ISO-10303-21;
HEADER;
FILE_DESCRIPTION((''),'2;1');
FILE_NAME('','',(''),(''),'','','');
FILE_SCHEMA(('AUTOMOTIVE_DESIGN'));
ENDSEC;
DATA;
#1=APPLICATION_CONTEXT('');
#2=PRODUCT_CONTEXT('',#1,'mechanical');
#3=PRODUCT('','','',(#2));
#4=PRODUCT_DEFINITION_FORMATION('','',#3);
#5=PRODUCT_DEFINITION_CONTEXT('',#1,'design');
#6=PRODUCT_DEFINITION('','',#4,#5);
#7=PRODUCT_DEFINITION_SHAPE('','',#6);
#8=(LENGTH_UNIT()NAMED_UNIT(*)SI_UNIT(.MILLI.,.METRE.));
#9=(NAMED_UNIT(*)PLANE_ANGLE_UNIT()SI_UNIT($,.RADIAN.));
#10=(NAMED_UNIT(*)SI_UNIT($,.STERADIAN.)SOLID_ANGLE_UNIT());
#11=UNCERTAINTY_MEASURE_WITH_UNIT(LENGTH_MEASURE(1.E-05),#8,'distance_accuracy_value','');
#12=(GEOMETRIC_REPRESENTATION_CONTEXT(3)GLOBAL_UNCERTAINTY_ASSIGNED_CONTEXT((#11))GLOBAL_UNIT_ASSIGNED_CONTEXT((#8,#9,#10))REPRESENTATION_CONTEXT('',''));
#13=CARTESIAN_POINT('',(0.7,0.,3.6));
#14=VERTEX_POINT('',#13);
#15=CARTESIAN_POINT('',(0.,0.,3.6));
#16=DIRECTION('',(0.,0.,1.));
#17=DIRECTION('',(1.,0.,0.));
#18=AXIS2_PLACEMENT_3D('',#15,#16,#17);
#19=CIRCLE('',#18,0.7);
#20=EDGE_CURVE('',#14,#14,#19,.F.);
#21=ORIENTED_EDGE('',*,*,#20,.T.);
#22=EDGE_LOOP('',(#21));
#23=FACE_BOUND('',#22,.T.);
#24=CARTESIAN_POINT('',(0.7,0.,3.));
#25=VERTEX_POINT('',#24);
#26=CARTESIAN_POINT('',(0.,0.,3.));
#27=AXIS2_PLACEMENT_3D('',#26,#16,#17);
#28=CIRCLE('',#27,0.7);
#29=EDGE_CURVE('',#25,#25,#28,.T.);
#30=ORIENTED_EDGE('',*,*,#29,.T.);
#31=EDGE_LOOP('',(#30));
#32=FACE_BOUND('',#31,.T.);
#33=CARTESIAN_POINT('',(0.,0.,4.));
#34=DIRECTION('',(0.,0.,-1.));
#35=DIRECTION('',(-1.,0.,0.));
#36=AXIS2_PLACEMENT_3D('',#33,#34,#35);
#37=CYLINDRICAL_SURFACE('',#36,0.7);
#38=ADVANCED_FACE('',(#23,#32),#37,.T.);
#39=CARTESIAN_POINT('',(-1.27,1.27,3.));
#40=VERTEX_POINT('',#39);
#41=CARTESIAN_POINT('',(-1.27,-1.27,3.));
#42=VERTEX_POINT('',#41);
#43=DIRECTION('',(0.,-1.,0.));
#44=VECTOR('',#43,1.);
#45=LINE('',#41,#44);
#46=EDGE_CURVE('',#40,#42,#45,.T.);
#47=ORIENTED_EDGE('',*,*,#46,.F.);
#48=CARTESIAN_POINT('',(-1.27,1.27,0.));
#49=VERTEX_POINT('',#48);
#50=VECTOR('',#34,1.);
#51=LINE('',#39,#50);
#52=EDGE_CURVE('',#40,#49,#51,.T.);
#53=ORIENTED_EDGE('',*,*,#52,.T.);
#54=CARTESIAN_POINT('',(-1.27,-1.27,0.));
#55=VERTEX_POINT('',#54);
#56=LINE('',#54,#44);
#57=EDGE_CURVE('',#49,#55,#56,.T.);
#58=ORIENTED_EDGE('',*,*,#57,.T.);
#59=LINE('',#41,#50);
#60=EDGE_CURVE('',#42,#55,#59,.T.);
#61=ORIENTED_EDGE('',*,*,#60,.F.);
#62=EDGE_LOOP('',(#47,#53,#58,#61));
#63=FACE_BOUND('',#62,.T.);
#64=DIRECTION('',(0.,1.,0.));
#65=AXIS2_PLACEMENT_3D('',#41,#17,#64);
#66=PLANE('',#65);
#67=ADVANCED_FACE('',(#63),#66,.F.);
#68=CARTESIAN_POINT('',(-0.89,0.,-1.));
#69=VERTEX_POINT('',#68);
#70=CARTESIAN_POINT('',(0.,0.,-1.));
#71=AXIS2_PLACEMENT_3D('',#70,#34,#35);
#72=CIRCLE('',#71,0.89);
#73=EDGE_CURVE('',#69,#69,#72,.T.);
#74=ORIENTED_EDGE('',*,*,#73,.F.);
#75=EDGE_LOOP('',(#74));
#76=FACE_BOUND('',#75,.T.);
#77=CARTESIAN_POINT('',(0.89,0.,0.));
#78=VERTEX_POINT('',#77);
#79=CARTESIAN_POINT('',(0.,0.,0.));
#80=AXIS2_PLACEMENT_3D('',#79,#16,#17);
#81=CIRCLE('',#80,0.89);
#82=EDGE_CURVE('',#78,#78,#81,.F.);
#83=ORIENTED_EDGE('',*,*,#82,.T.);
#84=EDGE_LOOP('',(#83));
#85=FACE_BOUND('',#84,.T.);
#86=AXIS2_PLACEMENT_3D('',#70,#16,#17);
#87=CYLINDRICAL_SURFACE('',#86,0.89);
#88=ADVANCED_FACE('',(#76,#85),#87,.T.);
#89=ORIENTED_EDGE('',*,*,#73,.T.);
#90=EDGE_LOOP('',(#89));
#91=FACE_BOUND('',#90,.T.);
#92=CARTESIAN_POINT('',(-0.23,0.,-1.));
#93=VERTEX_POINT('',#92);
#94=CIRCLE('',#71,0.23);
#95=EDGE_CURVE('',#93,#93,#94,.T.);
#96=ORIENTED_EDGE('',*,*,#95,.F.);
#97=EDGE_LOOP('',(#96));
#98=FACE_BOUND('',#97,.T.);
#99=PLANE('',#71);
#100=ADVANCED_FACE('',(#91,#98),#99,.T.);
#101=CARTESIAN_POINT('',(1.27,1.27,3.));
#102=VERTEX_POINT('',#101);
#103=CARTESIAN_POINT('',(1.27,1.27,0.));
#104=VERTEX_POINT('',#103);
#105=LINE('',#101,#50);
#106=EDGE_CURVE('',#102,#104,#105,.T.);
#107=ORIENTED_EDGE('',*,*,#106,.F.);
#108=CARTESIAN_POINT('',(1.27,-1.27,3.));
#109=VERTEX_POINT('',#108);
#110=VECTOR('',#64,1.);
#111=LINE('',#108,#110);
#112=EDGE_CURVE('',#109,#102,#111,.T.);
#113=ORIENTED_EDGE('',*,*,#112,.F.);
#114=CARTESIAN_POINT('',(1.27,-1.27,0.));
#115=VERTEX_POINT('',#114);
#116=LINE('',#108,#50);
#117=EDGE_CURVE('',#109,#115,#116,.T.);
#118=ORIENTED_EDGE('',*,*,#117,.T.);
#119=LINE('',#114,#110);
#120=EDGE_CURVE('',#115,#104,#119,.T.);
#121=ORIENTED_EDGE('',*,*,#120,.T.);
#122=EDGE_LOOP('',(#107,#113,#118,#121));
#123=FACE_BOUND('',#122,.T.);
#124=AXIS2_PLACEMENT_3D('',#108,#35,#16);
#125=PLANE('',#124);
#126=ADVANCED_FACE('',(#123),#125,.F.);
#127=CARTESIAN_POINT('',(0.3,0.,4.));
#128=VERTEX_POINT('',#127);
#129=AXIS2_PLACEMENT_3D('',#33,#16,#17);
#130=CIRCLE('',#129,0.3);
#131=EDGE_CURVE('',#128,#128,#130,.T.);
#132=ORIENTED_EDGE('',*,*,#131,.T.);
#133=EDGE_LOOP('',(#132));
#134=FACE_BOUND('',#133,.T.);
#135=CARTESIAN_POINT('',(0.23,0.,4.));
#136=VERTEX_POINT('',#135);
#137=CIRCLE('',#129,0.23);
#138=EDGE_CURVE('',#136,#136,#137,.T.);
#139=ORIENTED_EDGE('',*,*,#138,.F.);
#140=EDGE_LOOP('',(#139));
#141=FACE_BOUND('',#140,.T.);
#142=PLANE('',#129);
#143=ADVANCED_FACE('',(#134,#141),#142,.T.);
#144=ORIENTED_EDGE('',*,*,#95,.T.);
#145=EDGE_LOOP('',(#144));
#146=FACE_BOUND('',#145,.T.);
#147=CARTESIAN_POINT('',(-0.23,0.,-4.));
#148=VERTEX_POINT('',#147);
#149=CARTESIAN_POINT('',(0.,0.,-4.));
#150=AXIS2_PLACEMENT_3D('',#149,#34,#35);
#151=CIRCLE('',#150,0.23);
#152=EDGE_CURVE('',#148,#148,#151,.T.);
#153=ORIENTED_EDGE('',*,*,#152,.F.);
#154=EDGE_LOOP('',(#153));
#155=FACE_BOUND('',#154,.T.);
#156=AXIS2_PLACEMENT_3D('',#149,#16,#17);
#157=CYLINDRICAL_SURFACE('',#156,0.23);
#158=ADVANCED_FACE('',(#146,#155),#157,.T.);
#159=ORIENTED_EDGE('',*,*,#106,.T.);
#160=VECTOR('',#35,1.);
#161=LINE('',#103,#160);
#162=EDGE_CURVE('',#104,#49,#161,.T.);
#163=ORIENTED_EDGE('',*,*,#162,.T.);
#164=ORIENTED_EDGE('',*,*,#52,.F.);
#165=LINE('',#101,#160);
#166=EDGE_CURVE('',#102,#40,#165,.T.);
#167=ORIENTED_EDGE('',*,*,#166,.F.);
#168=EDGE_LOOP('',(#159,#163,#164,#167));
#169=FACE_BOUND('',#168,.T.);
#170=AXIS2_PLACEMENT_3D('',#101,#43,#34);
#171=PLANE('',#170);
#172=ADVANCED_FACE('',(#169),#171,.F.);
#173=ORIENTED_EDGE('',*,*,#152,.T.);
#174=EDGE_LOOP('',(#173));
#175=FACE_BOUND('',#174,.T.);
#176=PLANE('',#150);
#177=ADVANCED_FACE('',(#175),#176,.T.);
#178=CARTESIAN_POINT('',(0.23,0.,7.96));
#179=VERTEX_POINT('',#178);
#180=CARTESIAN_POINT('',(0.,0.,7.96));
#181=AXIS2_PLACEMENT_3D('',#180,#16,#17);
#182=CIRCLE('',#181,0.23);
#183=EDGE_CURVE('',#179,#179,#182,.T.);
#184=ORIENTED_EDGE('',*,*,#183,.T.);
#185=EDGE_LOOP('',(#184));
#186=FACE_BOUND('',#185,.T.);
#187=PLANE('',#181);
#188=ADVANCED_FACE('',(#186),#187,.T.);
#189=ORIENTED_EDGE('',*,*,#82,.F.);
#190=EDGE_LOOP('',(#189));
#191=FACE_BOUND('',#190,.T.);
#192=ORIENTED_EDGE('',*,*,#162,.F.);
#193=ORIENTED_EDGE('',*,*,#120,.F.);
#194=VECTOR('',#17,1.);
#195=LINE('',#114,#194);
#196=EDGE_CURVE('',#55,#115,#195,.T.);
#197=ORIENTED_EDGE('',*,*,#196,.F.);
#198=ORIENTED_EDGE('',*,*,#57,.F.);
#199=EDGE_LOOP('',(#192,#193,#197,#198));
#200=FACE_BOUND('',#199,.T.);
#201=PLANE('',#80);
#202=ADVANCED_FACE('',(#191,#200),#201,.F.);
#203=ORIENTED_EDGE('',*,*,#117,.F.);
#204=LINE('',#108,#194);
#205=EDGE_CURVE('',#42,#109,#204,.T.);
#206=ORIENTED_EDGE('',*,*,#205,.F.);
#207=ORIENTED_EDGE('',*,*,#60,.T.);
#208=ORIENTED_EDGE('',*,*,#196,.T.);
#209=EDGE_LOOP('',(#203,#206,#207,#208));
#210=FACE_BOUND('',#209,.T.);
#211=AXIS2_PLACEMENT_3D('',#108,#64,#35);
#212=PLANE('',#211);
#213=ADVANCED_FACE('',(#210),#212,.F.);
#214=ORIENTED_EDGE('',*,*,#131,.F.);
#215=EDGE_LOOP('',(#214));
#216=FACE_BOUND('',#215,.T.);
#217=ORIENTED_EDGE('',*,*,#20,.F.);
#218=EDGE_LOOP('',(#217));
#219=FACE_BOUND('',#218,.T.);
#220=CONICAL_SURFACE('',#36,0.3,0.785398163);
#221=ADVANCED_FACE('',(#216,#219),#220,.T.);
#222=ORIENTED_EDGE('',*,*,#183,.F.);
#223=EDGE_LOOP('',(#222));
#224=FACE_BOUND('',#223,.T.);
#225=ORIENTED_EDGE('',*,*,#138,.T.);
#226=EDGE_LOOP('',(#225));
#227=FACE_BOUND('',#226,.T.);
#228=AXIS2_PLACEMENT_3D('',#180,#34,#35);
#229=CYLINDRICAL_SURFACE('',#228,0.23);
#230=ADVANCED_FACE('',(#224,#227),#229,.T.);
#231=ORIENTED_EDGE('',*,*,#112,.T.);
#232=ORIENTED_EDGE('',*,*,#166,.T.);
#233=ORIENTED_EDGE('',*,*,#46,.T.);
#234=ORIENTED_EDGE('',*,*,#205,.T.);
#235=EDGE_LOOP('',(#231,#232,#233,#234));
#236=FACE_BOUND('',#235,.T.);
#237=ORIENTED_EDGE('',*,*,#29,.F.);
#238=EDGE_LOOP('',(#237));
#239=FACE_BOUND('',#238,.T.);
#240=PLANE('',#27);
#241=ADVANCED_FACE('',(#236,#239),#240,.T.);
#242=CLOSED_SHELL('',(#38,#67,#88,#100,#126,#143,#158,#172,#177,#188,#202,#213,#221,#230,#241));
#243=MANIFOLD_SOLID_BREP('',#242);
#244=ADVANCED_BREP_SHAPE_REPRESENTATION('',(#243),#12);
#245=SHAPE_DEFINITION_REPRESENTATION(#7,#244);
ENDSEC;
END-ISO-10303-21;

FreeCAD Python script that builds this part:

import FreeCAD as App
import Part
import Sketcher
Q = App.Units.Quantity


def edges_at(feature, points):
    """Names of the edges that pass closest to the given points."""
    edges = feature.Shape.Edges
    near = lambda p: min(range(len(edges)), key=lambda i: edges[i].distToShape(Part.Vertex(*p))[0])
    return sorted({f"Edge{near(p) + 1}" for p in points})

doc = App.newDocument("Part")
body = doc.addObject("PartDesign::Body", "Body")

# Sketch on XY plane
sketch1 = body.newObject("Sketcher::SketchObject", "Sketch")
sketch1.AttachmentSupport = (doc.getObject("XY_Plane"), [""])
sketch1.MapMode = "FlatFace"
sketch1.addGeometry([
    Part.LineSegment(App.Vector(-1.3, 1.3, 0), App.Vector(-1.3, -1.3, 0)),
    Part.LineSegment(App.Vector(-1.3, -1.3, 0), App.Vector(1.3, -1.3, 0)),
    Part.LineSegment(App.Vector(1.3, -1.3, 0), App.Vector(1.3, 1.3, 0)),
    Part.LineSegment(App.Vector(1.3, 1.3, 0), App.Vector(-1.3, 1.3, 0)),
], False)
sketch1.addConstraint([
    Sketcher.Constraint("Coincident", 0, 2, 1, 1),
    Sketcher.Constraint("Coincident", 1, 2, 2, 1),
    Sketcher.Constraint("Coincident", 2, 2, 3, 1),
    Sketcher.Constraint("Coincident", 3, 2, 0, 1),
    Sketcher.Constraint("Vertical", 0),
    Sketcher.Constraint("Horizontal", 1),
    Sketcher.Constraint("Vertical", 2),
    Sketcher.Constraint("Horizontal", 3),
    Sketcher.Constraint("Symmetric", 0, 2, 2, 2, -1, 1),
    Sketcher.Constraint("Equal", 3, 0),
    Sketcher.Constraint("DistanceX", 1, 1, 1, 2, Q("2.54 mm")),
])
pad1 = body.newObject("PartDesign::Pad", "Pad")
pad1.Profile = sketch1
pad1.Length = 3

# Sketch on XY plane
sketch2 = body.newObject("Sketcher::SketchObject", "Sketch001")
sketch2.AttachmentSupport = (doc.getObject("XY_Plane"), [""])
sketch2.MapMode = "FlatFace"
sketch2.addGeometry(Part.Circle(App.Vector(0, 0, 0), App.Vector(0, 0, 1), 0.23), False)
sketch2.addConstraint([
    Sketcher.Constraint("Coincident", 0, 3, -1, 1),
    Sketcher.Constraint("Diameter", 0, Q("0.46 mm")),
])
pad2 = body.newObject("PartDesign::Pad", "Pad001")
pad2.Profile = sketch2
pad2.Length = 4
pad2.Reversed = True

# Sketch on XY plane
sketch3 = body.newObject("Sketcher::SketchObject", "Sketch002")
sketch3.AttachmentSupport = (doc.getObject("XY_Plane"), [""])
sketch3.MapMode = "FlatFace"
sketch3.addGeometry(Part.Circle(App.Vector(0, 0, 0), App.Vector(0, 0, 1), 0.9), False)
sketch3.addConstraint([
    Sketcher.Constraint("Coincident", 0, 3, -1, 1),
    Sketcher.Constraint("Diameter", 0, Q("1.78 mm")),
])
pad3 = body.newObject("PartDesign::Pad", "Pad002")
pad3.Profile = sketch3
pad3.Length = 1
pad3.Reversed = True

# Sketch on XY plane
sketch4 = body.newObject("Sketcher::SketchObject", "Sketch003")
sketch4.AttachmentSupport = (doc.getObject("XY_Plane"), [""])
sketch4.MapMode = "FlatFace"
sketch4.AttachmentOffset = App.Placement(App.Vector(0, 0, 3), App.Rotation())
sketch4.addGeometry(Part.Circle(App.Vector(0, 0, 0), App.Vector(0, 0, 1), 0.23), False)
sketch4.addConstraint([
    Sketcher.Constraint("Coincident", 0, 3, -1, 1),
    Sketcher.Constraint("Diameter", 0, Q("0.46 mm")),
])
pad4 = body.newObject("PartDesign::Pad", "Pad003")
pad4.Profile = sketch4
pad4.Length = 4.96

# Sketch on XY plane
sketch5 = body.newObject("Sketcher::SketchObject", "Sketch004")
sketch5.AttachmentSupport = (doc.getObject("XY_Plane"), [""])
sketch5.MapMode = "FlatFace"
sketch5.AttachmentOffset = App.Placement(App.Vector(0, 0, 3), App.Rotation())
sketch5.addGeometry(Part.Circle(App.Vector(0, 0, 0), App.Vector(0, 0, 1), 0.7), False)
sketch5.addConstraint([
    Sketcher.Constraint("Coincident", 0, 3, -1, 1),
    Sketcher.Constraint("Diameter", 0, Q("1.4 mm")),
])
pad5 = body.newObject("PartDesign::Pad", "Pad004")
pad5.Profile = sketch5
pad5.Length = 1
doc.recompute()

chamfer = body.newObject("PartDesign::Chamfer", "Chamfer")
chamfer.Base = (pad5, edges_at(pad5, [(-0.7, 0, 4)]))
chamfer.Size = 0.4

doc.recompute()
